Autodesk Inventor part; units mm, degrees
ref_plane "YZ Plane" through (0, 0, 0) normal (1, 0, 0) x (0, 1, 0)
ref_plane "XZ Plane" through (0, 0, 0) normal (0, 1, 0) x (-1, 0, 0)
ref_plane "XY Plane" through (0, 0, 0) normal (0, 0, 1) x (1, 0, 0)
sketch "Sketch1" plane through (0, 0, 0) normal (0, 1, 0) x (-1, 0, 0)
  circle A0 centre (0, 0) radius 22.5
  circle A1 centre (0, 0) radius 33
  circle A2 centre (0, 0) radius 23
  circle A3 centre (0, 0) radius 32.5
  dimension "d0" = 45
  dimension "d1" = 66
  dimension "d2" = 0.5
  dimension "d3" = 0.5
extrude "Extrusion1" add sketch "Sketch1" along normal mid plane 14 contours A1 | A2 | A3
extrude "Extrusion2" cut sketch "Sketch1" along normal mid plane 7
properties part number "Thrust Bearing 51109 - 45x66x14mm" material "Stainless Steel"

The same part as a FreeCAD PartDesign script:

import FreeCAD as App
import Part
import Sketcher
from FreeCAD import Vector

doc = App.newDocument("Part")
body = doc.addObject("PartDesign::Body", "Body")

# Sketch on XZ plane
sketch1 = doc.addObject("Sketcher::SketchObject", "Sketch")
body.addObject(sketch1)
sketch1.AttachmentSupport = (doc.XZ_Plane, [""])
sketch1.MapMode = "FlatFace"
sketch1.addGeometry([
    Part.Circle(Vector(0, 0, 0), Vector(0, 0, 1), 33),
    Part.Circle(Vector(0, 0, 0), Vector(0, 0, 1), 22),
], False)
sketch1.addConstraint([
    Sketcher.Constraint("Coincident", 0, 3, -1, 1),
    Sketcher.Constraint("Coincident", 1, 3, -1, 1),
    Sketcher.Constraint("Diameter", 0, 66.0),
    Sketcher.Constraint("Diameter", 1, 45.0),
])
pad1 = doc.addObject("PartDesign::Pad", "Pad")
body.addObject(pad1)
pad1.Profile = sketch1
pad1.Length = 14
pad1.Midplane = True

# Sketch on XZ plane
sketch2 = doc.addObject("Sketcher::SketchObject", "Sketch001")
body.addObject(sketch2)
sketch2.AttachmentSupport = (doc.XZ_Plane, [""])
sketch2.MapMode = "FlatFace"
sketch2.addGeometry([
    Part.Circle(Vector(0, 0, 0), Vector(0, 0, 1), 33),
    Part.Circle(Vector(0, 0, 0), Vector(0, 0, 1), 32),
    Part.Circle(Vector(0, 0, 0), Vector(0, 0, 1), 23),
    Part.Circle(Vector(0, 0, 0), Vector(0, 0, 1), 22),
], False)
sketch2.addConstraint([
    Sketcher.Constraint("Coincident", 0, 3, -1, 1),
    Sketcher.Constraint("Coincident", 1, 3, -1, 1),
    Sketcher.Constraint("Coincident", 2, 3, -1, 1),
    Sketcher.Constraint("Coincident", 3, 3, -1, 1),
    Sketcher.Constraint("Diameter", 0, 66.0),
    Sketcher.Constraint("Diameter", 3, 45.0),
    Sketcher.Constraint("Diameter", 1, 65.0),
    Sketcher.Constraint("Diameter", 2, 46.0),
])
pocket1 = doc.addObject("PartDesign::Pocket", "Pocket")
body.addObject(pocket1)
pocket1.Profile = sketch2
pocket1.Length = 7
pocket1.Midplane = True

doc.recompute()
